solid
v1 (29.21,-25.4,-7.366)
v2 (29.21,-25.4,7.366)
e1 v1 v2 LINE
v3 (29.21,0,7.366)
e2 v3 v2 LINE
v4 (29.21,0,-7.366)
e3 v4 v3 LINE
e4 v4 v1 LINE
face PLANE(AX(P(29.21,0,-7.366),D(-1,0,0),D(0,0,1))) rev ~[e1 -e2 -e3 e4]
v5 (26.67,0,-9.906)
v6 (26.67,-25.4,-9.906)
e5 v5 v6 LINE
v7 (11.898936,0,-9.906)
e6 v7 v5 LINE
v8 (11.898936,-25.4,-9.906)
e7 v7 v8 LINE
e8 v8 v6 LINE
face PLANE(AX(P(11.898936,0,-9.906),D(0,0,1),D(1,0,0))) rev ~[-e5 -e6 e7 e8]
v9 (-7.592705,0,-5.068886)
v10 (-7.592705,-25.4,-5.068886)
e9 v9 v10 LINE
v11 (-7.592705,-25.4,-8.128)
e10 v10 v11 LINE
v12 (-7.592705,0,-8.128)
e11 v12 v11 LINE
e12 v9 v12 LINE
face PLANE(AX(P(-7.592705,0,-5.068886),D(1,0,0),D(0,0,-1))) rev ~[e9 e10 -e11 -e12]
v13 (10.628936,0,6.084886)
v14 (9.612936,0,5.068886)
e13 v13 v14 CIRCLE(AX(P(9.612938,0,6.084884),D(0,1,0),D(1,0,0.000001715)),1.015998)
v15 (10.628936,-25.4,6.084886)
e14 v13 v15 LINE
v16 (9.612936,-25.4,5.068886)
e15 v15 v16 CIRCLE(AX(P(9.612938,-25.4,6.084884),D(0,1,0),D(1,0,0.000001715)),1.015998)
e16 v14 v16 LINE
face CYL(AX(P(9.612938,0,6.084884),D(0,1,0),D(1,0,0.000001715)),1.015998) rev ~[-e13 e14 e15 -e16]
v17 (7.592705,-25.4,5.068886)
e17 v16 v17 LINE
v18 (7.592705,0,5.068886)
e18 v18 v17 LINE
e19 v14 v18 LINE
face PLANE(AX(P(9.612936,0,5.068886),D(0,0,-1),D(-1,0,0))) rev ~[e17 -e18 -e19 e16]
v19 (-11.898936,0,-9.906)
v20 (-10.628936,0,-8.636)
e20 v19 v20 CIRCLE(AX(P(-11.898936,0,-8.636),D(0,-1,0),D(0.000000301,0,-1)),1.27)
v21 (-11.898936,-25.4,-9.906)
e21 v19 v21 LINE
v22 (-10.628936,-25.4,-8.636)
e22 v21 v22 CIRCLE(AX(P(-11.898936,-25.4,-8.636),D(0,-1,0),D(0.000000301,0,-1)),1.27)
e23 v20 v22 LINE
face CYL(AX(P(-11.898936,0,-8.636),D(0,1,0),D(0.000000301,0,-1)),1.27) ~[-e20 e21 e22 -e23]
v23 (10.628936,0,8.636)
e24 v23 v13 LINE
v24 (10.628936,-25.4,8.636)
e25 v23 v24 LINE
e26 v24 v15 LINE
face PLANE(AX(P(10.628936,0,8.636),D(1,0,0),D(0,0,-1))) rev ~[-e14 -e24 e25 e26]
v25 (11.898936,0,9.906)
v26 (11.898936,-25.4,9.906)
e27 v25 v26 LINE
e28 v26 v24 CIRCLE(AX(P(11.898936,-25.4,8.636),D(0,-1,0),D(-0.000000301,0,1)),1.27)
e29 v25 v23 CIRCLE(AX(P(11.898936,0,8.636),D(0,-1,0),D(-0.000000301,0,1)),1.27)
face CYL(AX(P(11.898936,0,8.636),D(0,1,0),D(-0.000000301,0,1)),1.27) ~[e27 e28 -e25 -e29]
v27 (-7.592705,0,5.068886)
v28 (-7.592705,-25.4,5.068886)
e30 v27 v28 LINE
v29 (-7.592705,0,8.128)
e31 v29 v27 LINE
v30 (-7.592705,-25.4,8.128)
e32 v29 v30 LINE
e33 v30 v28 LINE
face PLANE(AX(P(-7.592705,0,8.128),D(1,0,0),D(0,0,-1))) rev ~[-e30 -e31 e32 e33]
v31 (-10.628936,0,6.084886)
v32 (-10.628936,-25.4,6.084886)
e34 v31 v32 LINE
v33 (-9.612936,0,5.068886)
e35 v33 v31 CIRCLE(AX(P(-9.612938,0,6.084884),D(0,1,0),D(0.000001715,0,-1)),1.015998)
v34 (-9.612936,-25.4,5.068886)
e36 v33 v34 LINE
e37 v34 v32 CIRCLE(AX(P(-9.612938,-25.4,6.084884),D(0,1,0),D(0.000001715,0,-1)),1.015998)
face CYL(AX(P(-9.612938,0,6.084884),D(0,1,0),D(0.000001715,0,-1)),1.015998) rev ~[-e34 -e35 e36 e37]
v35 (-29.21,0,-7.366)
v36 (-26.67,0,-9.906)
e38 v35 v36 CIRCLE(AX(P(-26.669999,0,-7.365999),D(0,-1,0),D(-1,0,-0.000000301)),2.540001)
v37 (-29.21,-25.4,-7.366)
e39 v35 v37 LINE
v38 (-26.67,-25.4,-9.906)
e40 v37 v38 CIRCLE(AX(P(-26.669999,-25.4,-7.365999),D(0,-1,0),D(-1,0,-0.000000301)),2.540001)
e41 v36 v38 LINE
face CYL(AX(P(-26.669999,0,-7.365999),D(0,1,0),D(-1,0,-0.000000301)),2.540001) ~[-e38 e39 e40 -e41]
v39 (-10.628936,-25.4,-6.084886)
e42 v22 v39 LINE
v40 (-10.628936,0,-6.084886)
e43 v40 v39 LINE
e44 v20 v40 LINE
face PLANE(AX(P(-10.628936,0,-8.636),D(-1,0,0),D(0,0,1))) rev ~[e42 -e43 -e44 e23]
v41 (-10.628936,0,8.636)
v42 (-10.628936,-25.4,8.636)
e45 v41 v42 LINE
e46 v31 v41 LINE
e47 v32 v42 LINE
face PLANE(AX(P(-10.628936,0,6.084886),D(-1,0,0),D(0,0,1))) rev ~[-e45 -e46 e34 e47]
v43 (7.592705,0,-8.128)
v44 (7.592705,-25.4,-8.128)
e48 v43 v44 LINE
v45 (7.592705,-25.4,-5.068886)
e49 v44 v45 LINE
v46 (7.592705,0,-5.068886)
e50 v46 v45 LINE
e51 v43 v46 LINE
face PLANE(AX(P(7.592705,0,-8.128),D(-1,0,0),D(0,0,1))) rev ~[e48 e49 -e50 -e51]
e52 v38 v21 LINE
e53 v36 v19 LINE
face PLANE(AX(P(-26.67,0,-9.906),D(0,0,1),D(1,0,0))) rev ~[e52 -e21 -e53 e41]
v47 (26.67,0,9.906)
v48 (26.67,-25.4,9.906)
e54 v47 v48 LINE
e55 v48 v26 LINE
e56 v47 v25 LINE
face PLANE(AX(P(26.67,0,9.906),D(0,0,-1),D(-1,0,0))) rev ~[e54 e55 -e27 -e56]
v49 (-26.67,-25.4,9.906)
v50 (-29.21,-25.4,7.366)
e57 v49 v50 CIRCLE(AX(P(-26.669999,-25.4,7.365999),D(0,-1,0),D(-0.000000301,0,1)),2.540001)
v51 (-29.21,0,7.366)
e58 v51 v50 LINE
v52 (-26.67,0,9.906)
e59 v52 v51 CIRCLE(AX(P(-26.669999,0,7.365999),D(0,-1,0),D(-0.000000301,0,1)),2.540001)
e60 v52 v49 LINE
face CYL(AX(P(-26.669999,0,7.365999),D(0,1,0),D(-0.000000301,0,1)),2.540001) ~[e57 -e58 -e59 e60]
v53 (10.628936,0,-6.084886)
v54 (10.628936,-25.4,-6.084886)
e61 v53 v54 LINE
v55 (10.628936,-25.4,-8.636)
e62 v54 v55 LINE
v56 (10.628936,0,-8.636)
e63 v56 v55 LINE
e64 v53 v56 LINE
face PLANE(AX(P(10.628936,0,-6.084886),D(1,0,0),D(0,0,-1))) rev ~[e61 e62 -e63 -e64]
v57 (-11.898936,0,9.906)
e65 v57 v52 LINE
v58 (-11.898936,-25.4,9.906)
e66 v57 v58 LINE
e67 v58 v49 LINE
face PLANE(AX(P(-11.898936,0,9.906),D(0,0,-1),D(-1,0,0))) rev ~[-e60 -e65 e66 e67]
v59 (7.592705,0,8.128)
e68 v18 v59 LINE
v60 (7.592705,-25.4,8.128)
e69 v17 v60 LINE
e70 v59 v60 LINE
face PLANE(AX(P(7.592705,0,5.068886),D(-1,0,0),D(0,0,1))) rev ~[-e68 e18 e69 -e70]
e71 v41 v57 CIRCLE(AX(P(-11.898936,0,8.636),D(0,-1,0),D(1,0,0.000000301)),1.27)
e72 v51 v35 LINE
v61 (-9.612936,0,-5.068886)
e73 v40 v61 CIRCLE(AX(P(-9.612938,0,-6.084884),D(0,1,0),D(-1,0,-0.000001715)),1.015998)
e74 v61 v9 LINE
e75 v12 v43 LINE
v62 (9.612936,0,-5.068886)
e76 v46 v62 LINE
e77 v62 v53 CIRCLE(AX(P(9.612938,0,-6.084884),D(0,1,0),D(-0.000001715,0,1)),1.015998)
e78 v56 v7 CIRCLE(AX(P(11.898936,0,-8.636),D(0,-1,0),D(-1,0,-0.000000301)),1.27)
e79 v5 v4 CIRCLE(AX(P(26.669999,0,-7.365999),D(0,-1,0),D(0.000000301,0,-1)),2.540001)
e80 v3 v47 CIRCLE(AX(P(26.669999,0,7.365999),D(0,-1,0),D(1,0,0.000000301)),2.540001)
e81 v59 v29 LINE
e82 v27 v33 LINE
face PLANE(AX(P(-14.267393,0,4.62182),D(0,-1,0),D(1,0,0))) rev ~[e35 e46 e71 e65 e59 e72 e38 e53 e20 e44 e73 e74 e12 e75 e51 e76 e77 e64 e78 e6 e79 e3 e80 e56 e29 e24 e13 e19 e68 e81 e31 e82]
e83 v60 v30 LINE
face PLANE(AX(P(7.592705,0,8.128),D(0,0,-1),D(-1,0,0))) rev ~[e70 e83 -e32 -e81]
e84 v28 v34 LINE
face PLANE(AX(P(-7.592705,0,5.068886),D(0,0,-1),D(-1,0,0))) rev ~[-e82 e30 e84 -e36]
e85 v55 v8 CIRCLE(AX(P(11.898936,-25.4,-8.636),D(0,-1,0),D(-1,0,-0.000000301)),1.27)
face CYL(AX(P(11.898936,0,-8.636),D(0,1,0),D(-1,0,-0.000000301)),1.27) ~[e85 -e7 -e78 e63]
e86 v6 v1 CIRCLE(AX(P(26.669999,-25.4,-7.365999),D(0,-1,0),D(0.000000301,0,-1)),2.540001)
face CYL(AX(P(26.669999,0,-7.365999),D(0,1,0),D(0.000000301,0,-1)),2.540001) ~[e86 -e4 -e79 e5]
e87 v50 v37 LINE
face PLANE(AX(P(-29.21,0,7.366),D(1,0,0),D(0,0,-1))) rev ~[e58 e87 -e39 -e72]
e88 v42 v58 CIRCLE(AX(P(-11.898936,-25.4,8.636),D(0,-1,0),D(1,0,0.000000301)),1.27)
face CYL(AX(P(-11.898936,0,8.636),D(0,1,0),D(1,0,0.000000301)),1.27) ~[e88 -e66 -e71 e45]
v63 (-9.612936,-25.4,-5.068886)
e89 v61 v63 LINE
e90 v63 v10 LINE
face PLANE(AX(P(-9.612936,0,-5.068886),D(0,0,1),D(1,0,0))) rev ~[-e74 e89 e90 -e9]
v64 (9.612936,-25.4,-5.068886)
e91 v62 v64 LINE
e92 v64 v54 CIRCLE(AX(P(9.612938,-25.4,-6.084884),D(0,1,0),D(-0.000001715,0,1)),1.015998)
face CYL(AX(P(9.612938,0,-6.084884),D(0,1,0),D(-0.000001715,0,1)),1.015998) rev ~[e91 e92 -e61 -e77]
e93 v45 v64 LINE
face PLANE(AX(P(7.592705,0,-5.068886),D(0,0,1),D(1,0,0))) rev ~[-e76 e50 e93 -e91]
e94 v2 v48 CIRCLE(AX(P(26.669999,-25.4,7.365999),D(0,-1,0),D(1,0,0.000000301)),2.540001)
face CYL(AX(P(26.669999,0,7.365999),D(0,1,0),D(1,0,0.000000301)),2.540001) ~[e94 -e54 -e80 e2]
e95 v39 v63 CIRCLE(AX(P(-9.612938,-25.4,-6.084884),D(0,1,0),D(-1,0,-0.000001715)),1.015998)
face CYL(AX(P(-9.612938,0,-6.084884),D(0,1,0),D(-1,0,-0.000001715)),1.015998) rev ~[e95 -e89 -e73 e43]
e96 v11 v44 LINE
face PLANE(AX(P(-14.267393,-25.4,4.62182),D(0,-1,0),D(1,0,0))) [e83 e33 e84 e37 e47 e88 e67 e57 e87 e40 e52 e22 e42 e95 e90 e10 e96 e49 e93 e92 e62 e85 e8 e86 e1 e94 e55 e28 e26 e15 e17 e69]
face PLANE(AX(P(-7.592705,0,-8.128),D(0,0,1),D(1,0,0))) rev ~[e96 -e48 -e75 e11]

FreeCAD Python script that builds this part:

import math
import FreeCAD as App
import Part
import Sketcher
from FreeCAD import Vector
Q = App.Units.Quantity

doc = App.newDocument("Part")
params = doc.addObject("Spreadsheet::Sheet", "Params")
for row, (alias, value) in enumerate([
    ("sketch1_radius", "0.1 in"),
    ("sketch1_radius2", "0.05 in"),
    ("sketch1_radius3", "0.0399999 in"),
    ("sketch1_height", "0.58 in"),
    ("pad1_length", "1 in"),
], start=1):
    params.set(f"A{row}", alias)
    params.set(f"B{row}", "=" + value)
    params.setAlias(f"B{row}", alias)

body = doc.addObject("PartDesign::Body", "Body")

# Sketch on XZ plane
sketch1 = body.newObject("Sketcher::SketchObject", "Sketch")
sketch1.AttachmentSupport = (doc.getObject("XZ_Plane"), [""])
sketch1.MapMode = "FlatFace"
sketch1.addGeometry([
    Part.LineSegment(Vector(-29.21, 7.366, 0), Vector(-29.21, -7.366, 0)),  # 0
    Part.ArcOfCircle(Part.Circle(Vector(-26.669999, -7.365999, 0), Vector(0, 0, 1), 2.540001), math.radians(-179.999983), math.radians(-90.000017)),  # 1
    Part.LineSegment(Vector(-26.67, -9.906, 0), Vector(-11.898936, -9.906, 0)),  # 2
    Part.ArcOfCircle(Part.Circle(Vector(-11.898936, -8.636, 0), Vector(0, 0, 1), 1.27), math.radians(-89.999983), math.radians(-0.000017)),  # 3
    Part.LineSegment(Vector(-10.628936, -8.636, 0), Vector(-10.628936, -6.084886, 0)),  # 4
    Part.ArcOfCircle(Part.Circle(Vector(-9.612938, -6.084884, 0), Vector(0, 0, 1), 1.015998), math.radians(89.999902), math.radians(180.000098)),  # 5
    Part.LineSegment(Vector(-9.612936, -5.068886, 0), Vector(-7.592705, -5.068886, 0)),  # 6
    Part.LineSegment(Vector(-7.592705, -5.068886, 0), Vector(-7.592705, -8.128, 0)),  # 7
    Part.LineSegment(Vector(-7.592705, -8.128, 0), Vector(7.592705, -8.128, 0)),  # 8
    Part.LineSegment(Vector(7.592705, -8.128, 0), Vector(7.592705, -5.068886, 0)),  # 9
    Part.LineSegment(Vector(7.592705, -5.068886, 0), Vector(9.612936, -5.068886, 0)),  # 10
    Part.ArcOfCircle(Part.Circle(Vector(9.612938, -6.084884, 0), Vector(0, 0, 1), 1.015998), math.radians(-0.000098), math.radians(90.000098)),  # 11
    Part.LineSegment(Vector(10.628936, -6.084886, 0), Vector(10.628936, -8.636, 0)),  # 12
    Part.ArcOfCircle(Part.Circle(Vector(11.898936, -8.636, 0), Vector(0, 0, 1), 1.27), math.radians(-179.999983), math.radians(-90.000017)),  # 13
    Part.LineSegment(Vector(11.898936, -9.906, 0), Vector(26.67, -9.906, 0)),  # 14
    Part.ArcOfCircle(Part.Circle(Vector(26.669999, -7.365999, 0), Vector(0, 0, 1), 2.540001), math.radians(-89.999983), math.radians(-0.000017)),  # 15
    Part.LineSegment(Vector(29.21, -7.366, 0), Vector(29.21, 7.366, 0)),  # 16
    Part.ArcOfCircle(Part.Circle(Vector(26.669999, 7.365999, 0), Vector(0, 0, 1), 2.540001), math.radians(0.000017), math.radians(89.999983)),  # 17
    Part.LineSegment(Vector(26.67, 9.906, 0), Vector(11.898936, 9.906, 0)),  # 18
    Part.ArcOfCircle(Part.Circle(Vector(11.898936, 8.636, 0), Vector(0, 0, 1), 1.27), math.radians(90.000017), math.radians(179.999983)),  # 19
    Part.LineSegment(Vector(10.628936, 8.636, 0), Vector(10.628936, 6.084886, 0)),  # 20
    Part.ArcOfCircle(Part.Circle(Vector(9.612938, 6.084884, 0), Vector(0, 0, 1), 1.015998), math.radians(-90.000098), math.radians(0.000098)),  # 21
    Part.LineSegment(Vector(9.612936, 5.068886, 0), Vector(7.592705, 5.068886, 0)),  # 22
    Part.LineSegment(Vector(7.592705, 5.068886, 0), Vector(7.592705, 8.128, 0)),  # 23
    Part.LineSegment(Vector(7.592705, 8.128, 0), Vector(-7.592705, 8.128, 0)),  # 24
    Part.LineSegment(Vector(-7.592705, 8.128, 0), Vector(-7.592705, 5.068886, 0)),  # 25
    Part.LineSegment(Vector(-7.592705, 5.068886, 0), Vector(-9.612936, 5.068886, 0)),  # 26
    Part.ArcOfCircle(Part.Circle(Vector(-9.612938, 6.084884, 0), Vector(0, 0, 1), 1.015998), math.radians(179.999902), math.radians(270.000098)),  # 27
    Part.LineSegment(Vector(-10.628936, 6.084886, 0), Vector(-10.628936, 8.636, 0)),  # 28
    Part.ArcOfCircle(Part.Circle(Vector(-11.898936, 8.636, 0), Vector(0, 0, 1), 1.27), math.radians(0.000017), math.radians(89.999983)),  # 29
    Part.LineSegment(Vector(-11.898936, 9.906, 0), Vector(-26.67, 9.906, 0)),  # 30
    Part.ArcOfCircle(Part.Circle(Vector(-26.669999, 7.365999, 0), Vector(0, 0, 1), 2.540001), math.radians(90.000017), math.radians(179.999983)),  # 31
], False)
sketch1.addConstraint([
    Sketcher.Constraint("Tangent", 0, 2, 1, 1),
    Sketcher.Constraint("Tangent", 1, 2, 2, 1),
    Sketcher.Constraint("Tangent", 2, 2, 3, 1),
    Sketcher.Constraint("Tangent", 3, 2, 4, 1),
    Sketcher.Constraint("Tangent", 4, 2, 5, 2),
    Sketcher.Constraint("Tangent", 5, 1, 6, 1),
    Sketcher.Constraint("Coincident", 6, 2, 7, 1),
    Sketcher.Constraint("Coincident", 7, 2, 8, 1),
    Sketcher.Constraint("Coincident", 8, 2, 9, 1),
    Sketcher.Constraint("Coincident", 9, 2, 10, 1),
    Sketcher.Constraint("Tangent", 10, 2, 11, 2),
    Sketcher.Constraint("Tangent", 11, 1, 12, 1),
    Sketcher.Constraint("Tangent", 12, 2, 13, 1),
    Sketcher.Constraint("Tangent", 13, 2, 14, 1),
    Sketcher.Constraint("Tangent", 14, 2, 15, 1),
    Sketcher.Constraint("Tangent", 15, 2, 16, 1),
    Sketcher.Constraint("Tangent", 16, 2, 17, 1),
    Sketcher.Constraint("Tangent", 17, 2, 18, 1),
    Sketcher.Constraint("Tangent", 18, 2, 19, 1),
    Sketcher.Constraint("Tangent", 19, 2, 20, 1),
    Sketcher.Constraint("Tangent", 20, 2, 21, 2),
    Sketcher.Constraint("Tangent", 21, 1, 22, 1),
    Sketcher.Constraint("Coincident", 22, 2, 23, 1),
    Sketcher.Constraint("Coincident", 23, 2, 24, 1),
    Sketcher.Constraint("Coincident", 24, 2, 25, 1),
    Sketcher.Constraint("Coincident", 25, 2, 26, 1),
    Sketcher.Constraint("Tangent", 26, 2, 27, 2),
    Sketcher.Constraint("Tangent", 27, 1, 28, 1),
    Sketcher.Constraint("Tangent", 28, 2, 29, 1),
    Sketcher.Constraint("Tangent", 29, 2, 30, 1),
    Sketcher.Constraint("Tangent", 30, 2, 31, 1),
    Sketcher.Constraint("Tangent", 31, 2, 0, 1),
    Sketcher.Constraint("Vertical", 0),
    Sketcher.Constraint("Horizontal", 2),
    Sketcher.Constraint("Vertical", 4),
    Sketcher.Constraint("Horizontal", 6),
    Sketcher.Constraint("Vertical", 7),
    Sketcher.Constraint("Horizontal", 8),
    Sketcher.Constraint("Vertical", 9),
    Sketcher.Constraint("Horizontal", 10),
    Sketcher.Constraint("Vertical", 12),
    Sketcher.Constraint("Horizontal", 14),
    Sketcher.Constraint("Vertical", 16),
    Sketcher.Constraint("Horizontal", 18),
    Sketcher.Constraint("Vertical", 20),
    Sketcher.Constraint("Horizontal", 22),
    Sketcher.Constraint("Vertical", 23),
    Sketcher.Constraint("Horizontal", 24),
    Sketcher.Constraint("Vertical", 25),
    Sketcher.Constraint("Horizontal", 26),
    Sketcher.Constraint("Vertical", 28),
    Sketcher.Constraint("Horizontal", 30),
    Sketcher.Constraint("Equal", 5, 11),
    Sketcher.Constraint("Equal", 3, 13),
    Sketcher.Constraint("Equal", 1, 15),
    Sketcher.Constraint("Equal", 15, 17),
    Sketcher.Constraint("Equal", 13, 19),
    Sketcher.Constraint("Equal", 11, 21),
    Sketcher.Constraint("Equal", 21, 27),
    Sketcher.Constraint("Equal", 19, 29),
    Sketcher.Constraint("Equal", 17, 31),
    Sketcher.Constraint("Symmetric", 1, 3, 17, 3, -1, 1),
    Sketcher.Constraint("Symmetric", 5, 3, 21, 3, -1, 1),
    Sketcher.Constraint("Symmetric", 11, 3, 27, 3, -1, 1),
    Sketcher.Constraint("Symmetric", 7, 2, 23, 2, -1, 1),
    Sketcher.Constraint("Symmetric", 5, 3, 11, 3, -2),
    Sketcher.Constraint("Horizontal", 3, 3, 13, 3),
    Sketcher.Constraint("Horizontal", 19, 3, 29, 3),
    Sketcher.Constraint("Vertical", 9, 2, 22, 2),
    Sketcher.Constraint("Vertical", 7, 2, 24, 2),
    Sketcher.Constraint("Radius", 1, Q("0.1 in")),
    Sketcher.Constraint("Radius", 3, Q("0.05 in")),
    Sketcher.Constraint("Radius", 5, Q("0.0399999 in")),
    Sketcher.Constraint("DistanceY", 0, 2, 0, 1, Q("0.58 in")),
    Sketcher.Constraint("DistanceX", 1, 3, 15, 3, Q("2.0999999 in")),
    Sketcher.Constraint("DistanceY", 7, 2, -1, 1, Q("0.32 in")),
    Sketcher.Constraint("DistanceX", 6, 1, 6, 2, Q("2.020231 mm")),
    Sketcher.Constraint("DistanceX", 8, 1, 8, 2, Q("15.18541 mm")),
    Sketcher.Constraint("DistanceY", 4, 1, 4, 2, Q("2.551114 mm")),
])
sketch1.setExpression("Constraints[70]", "Params.sketch1_radius")
sketch1.setExpression("Constraints[71]", "Params.sketch1_radius2")
sketch1.setExpression("Constraints[72]", "Params.sketch1_radius3")
sketch1.setExpression("Constraints[73]", "Params.sketch1_height")
pad1 = body.newObject("PartDesign::Pad", "Pad")
pad1.Profile = sketch1
pad1.setExpression("Length", "Params.pad1_length")

doc.recompute()
